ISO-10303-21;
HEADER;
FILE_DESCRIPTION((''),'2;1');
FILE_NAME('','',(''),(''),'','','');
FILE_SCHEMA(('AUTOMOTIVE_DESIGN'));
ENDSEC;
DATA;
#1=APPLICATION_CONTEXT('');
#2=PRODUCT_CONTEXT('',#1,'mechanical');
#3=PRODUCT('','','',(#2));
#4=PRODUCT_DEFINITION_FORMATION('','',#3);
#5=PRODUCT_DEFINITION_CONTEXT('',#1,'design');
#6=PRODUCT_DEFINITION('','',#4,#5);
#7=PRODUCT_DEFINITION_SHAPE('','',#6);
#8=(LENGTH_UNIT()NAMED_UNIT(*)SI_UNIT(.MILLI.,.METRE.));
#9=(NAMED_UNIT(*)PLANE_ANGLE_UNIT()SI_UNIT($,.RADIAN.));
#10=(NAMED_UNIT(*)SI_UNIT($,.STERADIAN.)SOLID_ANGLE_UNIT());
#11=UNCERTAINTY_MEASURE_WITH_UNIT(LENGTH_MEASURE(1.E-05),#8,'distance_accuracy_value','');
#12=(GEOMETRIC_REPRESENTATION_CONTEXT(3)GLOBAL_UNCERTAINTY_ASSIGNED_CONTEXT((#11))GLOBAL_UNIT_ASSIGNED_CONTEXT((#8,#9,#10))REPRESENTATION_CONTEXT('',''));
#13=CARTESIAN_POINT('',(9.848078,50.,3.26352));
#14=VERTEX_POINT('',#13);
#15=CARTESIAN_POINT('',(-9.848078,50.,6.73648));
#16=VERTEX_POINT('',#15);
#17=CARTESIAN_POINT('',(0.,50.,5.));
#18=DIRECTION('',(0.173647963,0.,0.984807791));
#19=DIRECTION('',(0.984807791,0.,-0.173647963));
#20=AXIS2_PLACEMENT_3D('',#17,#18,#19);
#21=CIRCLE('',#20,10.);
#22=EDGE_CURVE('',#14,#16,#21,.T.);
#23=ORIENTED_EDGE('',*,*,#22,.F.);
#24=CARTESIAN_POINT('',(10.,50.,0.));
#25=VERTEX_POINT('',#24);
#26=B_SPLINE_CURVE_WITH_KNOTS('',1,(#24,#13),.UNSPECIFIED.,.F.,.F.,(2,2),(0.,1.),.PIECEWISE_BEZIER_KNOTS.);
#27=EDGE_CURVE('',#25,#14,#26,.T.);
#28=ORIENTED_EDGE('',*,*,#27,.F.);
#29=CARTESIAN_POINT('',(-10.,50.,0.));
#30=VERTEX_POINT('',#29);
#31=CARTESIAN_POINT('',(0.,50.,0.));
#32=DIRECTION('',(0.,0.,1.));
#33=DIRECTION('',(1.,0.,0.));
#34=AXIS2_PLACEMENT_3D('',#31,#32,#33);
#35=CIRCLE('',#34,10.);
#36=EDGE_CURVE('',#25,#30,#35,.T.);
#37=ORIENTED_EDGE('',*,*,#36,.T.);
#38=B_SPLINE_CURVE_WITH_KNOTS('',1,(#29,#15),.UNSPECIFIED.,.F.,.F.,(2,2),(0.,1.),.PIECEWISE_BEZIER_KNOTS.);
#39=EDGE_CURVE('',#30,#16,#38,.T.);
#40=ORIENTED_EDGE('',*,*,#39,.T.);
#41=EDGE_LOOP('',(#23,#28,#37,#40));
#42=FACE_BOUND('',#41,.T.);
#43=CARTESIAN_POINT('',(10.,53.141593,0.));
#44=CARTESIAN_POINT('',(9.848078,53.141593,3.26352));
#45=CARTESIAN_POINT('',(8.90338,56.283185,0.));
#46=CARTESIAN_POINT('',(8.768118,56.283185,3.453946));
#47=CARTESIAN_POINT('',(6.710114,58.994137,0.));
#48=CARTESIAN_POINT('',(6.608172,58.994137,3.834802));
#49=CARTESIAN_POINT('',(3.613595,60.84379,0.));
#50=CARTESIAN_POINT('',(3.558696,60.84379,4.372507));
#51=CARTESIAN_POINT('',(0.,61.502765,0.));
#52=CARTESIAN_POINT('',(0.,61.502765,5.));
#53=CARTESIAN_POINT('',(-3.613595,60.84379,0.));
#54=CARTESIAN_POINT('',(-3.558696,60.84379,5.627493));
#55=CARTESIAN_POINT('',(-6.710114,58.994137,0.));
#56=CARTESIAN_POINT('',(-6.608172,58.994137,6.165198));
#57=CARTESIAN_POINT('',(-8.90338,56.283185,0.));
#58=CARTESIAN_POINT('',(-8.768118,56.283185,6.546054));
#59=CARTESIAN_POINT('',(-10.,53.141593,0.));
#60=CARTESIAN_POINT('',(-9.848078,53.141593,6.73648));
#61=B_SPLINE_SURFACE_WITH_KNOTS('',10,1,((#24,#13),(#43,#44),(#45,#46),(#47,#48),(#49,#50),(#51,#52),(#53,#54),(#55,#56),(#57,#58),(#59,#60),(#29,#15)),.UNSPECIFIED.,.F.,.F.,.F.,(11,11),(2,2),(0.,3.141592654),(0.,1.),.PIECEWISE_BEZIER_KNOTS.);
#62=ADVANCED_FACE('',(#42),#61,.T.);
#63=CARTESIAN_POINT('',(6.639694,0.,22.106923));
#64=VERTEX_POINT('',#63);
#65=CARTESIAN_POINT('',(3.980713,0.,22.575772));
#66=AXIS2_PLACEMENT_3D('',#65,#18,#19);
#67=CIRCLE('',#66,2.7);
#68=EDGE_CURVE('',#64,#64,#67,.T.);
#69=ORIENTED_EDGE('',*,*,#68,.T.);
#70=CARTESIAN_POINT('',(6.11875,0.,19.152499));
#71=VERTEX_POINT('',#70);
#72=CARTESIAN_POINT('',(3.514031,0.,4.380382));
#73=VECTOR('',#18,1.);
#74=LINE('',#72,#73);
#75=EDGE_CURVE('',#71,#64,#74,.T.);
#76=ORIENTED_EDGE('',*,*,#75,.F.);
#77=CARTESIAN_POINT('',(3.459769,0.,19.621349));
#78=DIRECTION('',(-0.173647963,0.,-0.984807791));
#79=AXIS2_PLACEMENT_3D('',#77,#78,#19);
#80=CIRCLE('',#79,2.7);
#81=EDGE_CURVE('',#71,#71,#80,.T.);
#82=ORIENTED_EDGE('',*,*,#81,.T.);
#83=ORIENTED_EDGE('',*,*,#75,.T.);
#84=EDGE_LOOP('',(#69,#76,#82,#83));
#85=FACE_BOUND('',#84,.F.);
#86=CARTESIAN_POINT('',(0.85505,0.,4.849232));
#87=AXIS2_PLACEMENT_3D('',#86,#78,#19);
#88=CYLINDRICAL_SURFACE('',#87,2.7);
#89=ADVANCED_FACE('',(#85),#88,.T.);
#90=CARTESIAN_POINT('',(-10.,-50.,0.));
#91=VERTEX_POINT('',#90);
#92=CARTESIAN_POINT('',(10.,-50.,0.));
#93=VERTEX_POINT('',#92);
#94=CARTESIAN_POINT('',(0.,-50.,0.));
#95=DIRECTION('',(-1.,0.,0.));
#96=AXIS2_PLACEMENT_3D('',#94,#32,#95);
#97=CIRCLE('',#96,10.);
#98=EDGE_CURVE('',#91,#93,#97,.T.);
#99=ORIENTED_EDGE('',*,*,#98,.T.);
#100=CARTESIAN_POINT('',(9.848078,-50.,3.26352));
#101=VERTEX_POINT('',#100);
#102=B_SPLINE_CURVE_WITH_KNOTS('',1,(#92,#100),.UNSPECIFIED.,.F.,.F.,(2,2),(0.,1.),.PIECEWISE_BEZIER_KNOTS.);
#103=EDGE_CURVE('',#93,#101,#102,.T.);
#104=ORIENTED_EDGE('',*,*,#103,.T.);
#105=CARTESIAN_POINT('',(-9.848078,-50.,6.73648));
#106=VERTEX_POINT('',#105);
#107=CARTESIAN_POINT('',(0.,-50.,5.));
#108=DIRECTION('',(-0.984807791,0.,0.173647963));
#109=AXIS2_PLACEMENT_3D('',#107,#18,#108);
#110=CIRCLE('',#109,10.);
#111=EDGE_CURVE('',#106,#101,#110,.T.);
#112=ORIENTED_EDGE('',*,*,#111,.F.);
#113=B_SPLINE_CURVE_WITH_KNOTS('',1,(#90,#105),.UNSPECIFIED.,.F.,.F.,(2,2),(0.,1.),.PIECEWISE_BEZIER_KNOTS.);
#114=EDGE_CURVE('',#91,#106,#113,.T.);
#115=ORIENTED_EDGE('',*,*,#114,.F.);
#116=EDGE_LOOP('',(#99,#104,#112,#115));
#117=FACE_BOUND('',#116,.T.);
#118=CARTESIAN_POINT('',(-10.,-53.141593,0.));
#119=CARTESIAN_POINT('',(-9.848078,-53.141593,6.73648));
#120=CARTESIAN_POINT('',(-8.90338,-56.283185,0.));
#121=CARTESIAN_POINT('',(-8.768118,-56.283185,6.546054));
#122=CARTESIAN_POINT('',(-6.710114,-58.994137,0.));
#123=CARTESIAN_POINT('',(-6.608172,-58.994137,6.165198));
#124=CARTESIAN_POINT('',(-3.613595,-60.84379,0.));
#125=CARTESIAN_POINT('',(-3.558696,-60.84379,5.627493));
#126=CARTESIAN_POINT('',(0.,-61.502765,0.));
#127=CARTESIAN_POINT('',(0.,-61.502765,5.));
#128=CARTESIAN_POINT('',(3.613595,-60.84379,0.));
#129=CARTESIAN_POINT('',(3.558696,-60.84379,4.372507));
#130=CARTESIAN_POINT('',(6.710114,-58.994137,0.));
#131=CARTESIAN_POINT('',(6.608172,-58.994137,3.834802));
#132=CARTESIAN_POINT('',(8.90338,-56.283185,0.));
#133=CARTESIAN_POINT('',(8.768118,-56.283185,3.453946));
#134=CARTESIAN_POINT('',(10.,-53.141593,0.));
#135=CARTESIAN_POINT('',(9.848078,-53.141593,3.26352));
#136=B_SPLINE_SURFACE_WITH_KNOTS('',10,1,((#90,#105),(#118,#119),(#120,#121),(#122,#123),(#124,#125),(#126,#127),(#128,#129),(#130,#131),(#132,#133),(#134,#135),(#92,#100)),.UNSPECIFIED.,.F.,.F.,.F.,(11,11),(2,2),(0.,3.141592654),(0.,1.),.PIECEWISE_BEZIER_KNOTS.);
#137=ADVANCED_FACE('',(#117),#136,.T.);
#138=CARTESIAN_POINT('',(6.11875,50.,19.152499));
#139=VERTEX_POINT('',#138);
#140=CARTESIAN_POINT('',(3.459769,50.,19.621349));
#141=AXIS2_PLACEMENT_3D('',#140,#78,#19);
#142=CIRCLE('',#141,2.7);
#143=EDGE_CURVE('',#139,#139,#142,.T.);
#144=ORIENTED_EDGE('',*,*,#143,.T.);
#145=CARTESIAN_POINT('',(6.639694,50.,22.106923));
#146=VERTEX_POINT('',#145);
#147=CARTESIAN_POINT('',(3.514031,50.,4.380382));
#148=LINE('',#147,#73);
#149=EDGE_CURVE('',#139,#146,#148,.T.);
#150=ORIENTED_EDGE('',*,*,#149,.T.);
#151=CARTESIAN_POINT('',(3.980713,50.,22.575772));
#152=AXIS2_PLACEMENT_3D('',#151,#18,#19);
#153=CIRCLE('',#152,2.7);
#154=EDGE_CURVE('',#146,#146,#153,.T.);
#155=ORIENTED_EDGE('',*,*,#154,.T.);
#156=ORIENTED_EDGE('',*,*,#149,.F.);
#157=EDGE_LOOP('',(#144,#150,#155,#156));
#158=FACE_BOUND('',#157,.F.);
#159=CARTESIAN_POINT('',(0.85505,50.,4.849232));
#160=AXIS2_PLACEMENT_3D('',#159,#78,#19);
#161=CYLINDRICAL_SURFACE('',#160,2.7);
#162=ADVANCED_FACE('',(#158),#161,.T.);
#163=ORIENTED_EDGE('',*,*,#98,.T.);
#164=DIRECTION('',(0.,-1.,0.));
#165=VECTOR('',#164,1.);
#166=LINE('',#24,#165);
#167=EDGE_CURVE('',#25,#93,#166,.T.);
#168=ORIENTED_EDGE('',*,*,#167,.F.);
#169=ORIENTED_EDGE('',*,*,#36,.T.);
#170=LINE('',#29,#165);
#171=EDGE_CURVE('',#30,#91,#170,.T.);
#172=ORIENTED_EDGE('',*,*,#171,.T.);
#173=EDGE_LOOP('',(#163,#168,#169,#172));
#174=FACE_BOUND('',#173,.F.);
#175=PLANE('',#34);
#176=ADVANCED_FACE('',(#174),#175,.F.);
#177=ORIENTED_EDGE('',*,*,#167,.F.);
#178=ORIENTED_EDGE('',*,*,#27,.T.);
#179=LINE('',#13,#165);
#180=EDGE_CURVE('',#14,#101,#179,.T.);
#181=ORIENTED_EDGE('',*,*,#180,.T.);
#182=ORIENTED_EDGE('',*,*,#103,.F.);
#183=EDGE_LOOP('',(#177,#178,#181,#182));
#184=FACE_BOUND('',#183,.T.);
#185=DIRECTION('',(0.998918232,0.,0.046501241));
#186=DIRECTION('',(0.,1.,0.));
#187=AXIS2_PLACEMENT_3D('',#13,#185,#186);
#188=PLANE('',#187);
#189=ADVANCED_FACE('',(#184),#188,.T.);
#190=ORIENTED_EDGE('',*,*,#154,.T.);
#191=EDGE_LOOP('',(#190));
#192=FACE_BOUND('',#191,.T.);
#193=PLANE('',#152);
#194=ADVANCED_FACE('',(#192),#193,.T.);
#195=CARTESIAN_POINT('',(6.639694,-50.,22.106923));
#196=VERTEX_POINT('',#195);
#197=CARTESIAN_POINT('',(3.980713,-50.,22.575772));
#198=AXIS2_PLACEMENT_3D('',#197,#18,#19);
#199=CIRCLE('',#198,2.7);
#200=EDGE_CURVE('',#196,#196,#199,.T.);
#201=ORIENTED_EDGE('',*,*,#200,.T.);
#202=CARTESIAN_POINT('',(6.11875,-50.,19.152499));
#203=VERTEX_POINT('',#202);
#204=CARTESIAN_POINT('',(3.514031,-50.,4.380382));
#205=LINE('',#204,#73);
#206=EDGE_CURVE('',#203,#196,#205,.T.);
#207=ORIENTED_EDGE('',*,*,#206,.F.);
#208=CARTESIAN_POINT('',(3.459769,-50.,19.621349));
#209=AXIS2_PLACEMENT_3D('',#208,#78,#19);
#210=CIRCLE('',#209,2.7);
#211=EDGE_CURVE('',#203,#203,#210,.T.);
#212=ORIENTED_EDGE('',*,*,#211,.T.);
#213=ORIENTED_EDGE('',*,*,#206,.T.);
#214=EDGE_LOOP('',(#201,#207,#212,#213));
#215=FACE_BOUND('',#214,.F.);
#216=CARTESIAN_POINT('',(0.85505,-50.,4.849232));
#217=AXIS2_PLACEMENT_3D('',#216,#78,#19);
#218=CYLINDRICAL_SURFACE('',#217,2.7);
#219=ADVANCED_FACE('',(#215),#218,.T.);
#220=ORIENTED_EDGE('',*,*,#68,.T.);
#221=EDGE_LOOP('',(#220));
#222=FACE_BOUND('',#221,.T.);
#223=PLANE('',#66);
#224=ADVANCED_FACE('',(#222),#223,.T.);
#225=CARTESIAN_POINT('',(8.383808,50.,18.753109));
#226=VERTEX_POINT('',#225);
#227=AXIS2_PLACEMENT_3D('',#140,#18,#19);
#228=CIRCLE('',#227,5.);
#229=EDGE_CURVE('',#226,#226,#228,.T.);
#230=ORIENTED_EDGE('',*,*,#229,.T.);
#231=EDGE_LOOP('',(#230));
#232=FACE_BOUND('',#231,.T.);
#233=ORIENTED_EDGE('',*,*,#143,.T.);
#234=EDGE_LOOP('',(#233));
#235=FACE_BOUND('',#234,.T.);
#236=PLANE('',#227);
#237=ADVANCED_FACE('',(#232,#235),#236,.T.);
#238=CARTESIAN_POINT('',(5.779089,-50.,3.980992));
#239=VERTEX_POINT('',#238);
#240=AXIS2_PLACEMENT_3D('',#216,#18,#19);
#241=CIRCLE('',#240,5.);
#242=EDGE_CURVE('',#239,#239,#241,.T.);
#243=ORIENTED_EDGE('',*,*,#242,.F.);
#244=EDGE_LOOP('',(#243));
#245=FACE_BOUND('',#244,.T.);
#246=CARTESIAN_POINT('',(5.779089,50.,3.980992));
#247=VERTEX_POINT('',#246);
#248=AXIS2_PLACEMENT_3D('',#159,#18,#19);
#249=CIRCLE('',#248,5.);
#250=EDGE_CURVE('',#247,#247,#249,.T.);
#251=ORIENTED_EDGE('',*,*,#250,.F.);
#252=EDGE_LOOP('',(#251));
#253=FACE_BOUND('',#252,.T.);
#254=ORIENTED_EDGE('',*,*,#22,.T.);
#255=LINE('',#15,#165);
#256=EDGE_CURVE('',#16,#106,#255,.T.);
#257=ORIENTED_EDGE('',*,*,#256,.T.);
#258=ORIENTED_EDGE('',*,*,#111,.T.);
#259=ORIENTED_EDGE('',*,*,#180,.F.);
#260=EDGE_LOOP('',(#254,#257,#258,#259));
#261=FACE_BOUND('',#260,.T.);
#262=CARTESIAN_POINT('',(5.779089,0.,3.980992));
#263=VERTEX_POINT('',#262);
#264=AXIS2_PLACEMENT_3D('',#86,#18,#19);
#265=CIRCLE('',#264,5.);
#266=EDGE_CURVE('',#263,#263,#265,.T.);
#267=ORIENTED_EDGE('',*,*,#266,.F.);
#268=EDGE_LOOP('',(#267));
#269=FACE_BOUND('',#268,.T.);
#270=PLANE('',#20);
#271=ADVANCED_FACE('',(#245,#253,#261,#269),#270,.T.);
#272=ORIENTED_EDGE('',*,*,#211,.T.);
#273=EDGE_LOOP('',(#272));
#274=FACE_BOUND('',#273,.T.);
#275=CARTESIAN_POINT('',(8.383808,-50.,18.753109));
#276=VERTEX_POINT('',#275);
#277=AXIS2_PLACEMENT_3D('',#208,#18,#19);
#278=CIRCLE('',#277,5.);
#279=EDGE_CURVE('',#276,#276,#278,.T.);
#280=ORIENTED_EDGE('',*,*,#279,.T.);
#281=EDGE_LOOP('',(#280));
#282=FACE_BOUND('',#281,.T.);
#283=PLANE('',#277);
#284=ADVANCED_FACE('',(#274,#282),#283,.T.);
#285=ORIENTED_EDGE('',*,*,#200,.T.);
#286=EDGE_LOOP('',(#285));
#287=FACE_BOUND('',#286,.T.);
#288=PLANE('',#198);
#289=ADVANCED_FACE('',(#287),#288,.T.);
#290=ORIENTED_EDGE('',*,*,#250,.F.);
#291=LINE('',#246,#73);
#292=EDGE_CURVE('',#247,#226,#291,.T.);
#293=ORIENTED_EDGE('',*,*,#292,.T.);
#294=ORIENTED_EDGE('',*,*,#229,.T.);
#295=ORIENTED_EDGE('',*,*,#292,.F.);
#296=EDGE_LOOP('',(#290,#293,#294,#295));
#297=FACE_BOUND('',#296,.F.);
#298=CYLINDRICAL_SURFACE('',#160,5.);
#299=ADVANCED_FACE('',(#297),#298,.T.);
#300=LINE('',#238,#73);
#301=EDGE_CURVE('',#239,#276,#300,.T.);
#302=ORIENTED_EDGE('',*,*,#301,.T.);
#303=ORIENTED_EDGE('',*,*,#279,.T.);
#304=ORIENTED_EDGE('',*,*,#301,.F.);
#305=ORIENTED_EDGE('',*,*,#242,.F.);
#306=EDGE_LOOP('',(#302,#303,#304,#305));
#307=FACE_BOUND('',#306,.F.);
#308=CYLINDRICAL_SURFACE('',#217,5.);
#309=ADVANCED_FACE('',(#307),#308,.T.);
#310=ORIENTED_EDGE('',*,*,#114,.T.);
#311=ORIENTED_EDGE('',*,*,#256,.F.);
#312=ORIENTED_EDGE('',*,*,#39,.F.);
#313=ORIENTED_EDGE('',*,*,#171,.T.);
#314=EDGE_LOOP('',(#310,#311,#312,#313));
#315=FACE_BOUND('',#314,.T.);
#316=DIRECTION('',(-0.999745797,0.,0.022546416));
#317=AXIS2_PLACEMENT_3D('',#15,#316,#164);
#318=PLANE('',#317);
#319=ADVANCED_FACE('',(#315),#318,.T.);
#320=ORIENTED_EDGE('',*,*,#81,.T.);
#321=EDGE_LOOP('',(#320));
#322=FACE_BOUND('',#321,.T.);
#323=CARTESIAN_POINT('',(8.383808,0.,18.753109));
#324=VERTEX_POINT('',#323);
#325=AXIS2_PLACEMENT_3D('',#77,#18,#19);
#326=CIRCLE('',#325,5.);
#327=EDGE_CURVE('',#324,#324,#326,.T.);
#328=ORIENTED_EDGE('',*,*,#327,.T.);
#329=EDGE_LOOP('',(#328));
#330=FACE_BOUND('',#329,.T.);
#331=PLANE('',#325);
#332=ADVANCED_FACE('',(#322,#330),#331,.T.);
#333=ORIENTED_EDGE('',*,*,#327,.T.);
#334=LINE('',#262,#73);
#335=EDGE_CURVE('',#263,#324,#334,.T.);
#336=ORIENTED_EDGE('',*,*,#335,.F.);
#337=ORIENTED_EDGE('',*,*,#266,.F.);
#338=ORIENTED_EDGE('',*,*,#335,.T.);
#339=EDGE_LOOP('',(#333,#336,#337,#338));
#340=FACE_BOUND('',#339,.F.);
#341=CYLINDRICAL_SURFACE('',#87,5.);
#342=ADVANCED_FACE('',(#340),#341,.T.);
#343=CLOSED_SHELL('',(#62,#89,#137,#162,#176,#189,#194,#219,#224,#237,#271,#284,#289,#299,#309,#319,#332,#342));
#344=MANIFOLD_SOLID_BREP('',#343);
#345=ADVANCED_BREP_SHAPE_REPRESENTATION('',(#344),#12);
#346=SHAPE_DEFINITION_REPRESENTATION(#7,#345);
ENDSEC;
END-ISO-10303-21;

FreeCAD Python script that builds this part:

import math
import FreeCAD as App
import Part
import Sketcher

V = App.Vector

doc = App.newDocument("Part")
body = doc.addObject("PartDesign::Body", "Body")

# Sketch on XY plane
sketch1 = doc.addObject("Sketcher::SketchObject", "Sketch")
body.addObject(sketch1)
sketch1.AttachmentSupport = (doc.XY_Plane, [""])
sketch1.MapMode = "FlatFace"
sketch1.addGeometry([
    Part.ArcOfCircle(Part.Circle(V(0, 50, 0), V(0, 0, 1), 10), math.radians(0), math.radians(180)),
    Part.LineSegment(V(-10, 50, 0), V(-10, -50, 0)),
    Part.ArcOfCircle(Part.Circle(V(0, -50, 0), V(0, 0, 1), 10), math.radians(180), math.radians(360)),
    Part.LineSegment(V(10, -50, 0), V(10, 50, 0)),
], False)
sketch1.addConstraint([
    Sketcher.Constraint("Tangent", 0, 2, 1, 1),
    Sketcher.Constraint("Tangent", 1, 2, 2, 1),
    Sketcher.Constraint("Tangent", 2, 2, 3, 1),
    Sketcher.Constraint("Tangent", 3, 2, 0, 1),
    Sketcher.Constraint("Vertical", 1),
    Sketcher.Constraint("Vertical", 3),
    Sketcher.Constraint("Symmetric", 0, 3, 2, 3, -1, 1),
    Sketcher.Constraint("Radius", 0, 10.0),
    Sketcher.Constraint("DistanceY", 1, 2, 1, 1, 100.0),
])

# Sketch on an angled plane
sketch2 = doc.addObject("Sketcher::SketchObject", "Sketch001")
body.addObject(sketch2)
sketch2.Placement = App.Placement(V(0, 0, 5), App.Rotation(V(0.984807791, 0, -0.173647963), V(0, 1, 0), V(0.173647963, 0, 0.984807791), "ZXY"))
sketch2.addGeometry([
    Part.ArcOfCircle(Part.Circle(V(0, 50, 0), V(0, 0, 1), 10), math.radians(0), math.radians(180)),
    Part.LineSegment(V(-10, 50, 0), V(-10, -50, 0)),
    Part.ArcOfCircle(Part.Circle(V(0, -50, 0), V(0, 0, 1), 10), math.radians(180), math.radians(360)),
    Part.LineSegment(V(10, -50, 0), V(10, 50, 0)),
], False)
sketch2.addConstraint([
    Sketcher.Constraint("Tangent", 0, 2, 1, 1),
    Sketcher.Constraint("Tangent", 1, 2, 2, 1),
    Sketcher.Constraint("Tangent", 2, 2, 3, 1),
    Sketcher.Constraint("Tangent", 3, 2, 0, 1),
    Sketcher.Constraint("Vertical", 1),
    Sketcher.Constraint("Vertical", 3),
    Sketcher.Constraint("Symmetric", 0, 3, 2, 3, -1, 1),
    Sketcher.Constraint("Radius", 0, 10.0),
    Sketcher.Constraint("DistanceY", 1, 2, 1, 1, 100.0),
])

additiveloft = doc.addObject("PartDesign::AdditiveLoft", "AdditiveLoft")
body.addObject(additiveloft)
additiveloft.Profile = sketch1
additiveloft.Sections = [sketch2]

# Sketch on an angled plane
sketch3 = doc.addObject("Sketcher::SketchObject", "Sketch002")
body.addObject(sketch3)
sketch3.Placement = App.Placement(V(0.85505, 0, 4.849232), App.Rotation(V(0.984807791, 0, -0.173647963), V(0, 1, 0), V(0.173647963, 0, 0.984807791), "ZXY"))
sketch3.addGeometry([
    Part.Circle(V(0, 50, 0), V(0, 0, 1), 5),
    Part.Circle(V(0, -50, 0), V(0, 0, 1), 5),
    Part.Circle(V(0, 0, 0), V(0, 0, 1), 5),
], False)
sketch3.addConstraint([
    Sketcher.Constraint("Coincident", 2, 3, -1, 1),
    Sketcher.Constraint("Equal", 0, 1),
    Sketcher.Constraint("Equal", 1, 2),
    Sketcher.Constraint("Symmetric", 0, 3, 1, 3, -1, 1),
    Sketcher.Constraint("PointOnObject", 0, 3, -2),
    Sketcher.Constraint("Diameter", 0, 10.0),
    Sketcher.Constraint("DistanceY", -1, 1, 0, 3, 50.0),
])
pad1 = doc.addObject("PartDesign::Pad", "Pad")
body.addObject(pad1)
pad1.Profile = sketch3
pad1.Length = 15

# Sketch on an angled plane
sketch4 = doc.addObject("Sketcher::SketchObject", "Sketch003")
body.addObject(sketch4)
sketch4.Placement = App.Placement(V(0.85505, 0, 4.849232), App.Rotation(V(0.984807791, 0, -0.173647963), V(0, 1, 0), V(0.173647963, 0, 0.984807791), "ZXY"))
sketch4.addGeometry([
    Part.Circle(V(0, 50, 0), V(0, 0, 1), 2.7),
    Part.Circle(V(0, -50, 0), V(0, 0, 1), 2.7),
    Part.Circle(V(0, 0, 0), V(0, 0, 1), 2.7),
], False)
sketch4.addConstraint([
    Sketcher.Constraint("Coincident", 2, 3, -1, 1),
    Sketcher.Constraint("Equal", 0, 1),
    Sketcher.Constraint("Equal", 1, 2),
    Sketcher.Constraint("Symmetric", 0, 3, 1, 3, -1, 1),
    Sketcher.Constraint("PointOnObject", 0, 3, -2),
    Sketcher.Constraint("Diameter", 0, 5.4),
    Sketcher.Constraint("DistanceY", -1, 1, 0, 3, 50.0),
])
pad2 = doc.addObject("PartDesign::Pad", "Pad001")
body.addObject(pad2)
pad2.Profile = sketch4
pad2.Length = 18

doc.recompute()
